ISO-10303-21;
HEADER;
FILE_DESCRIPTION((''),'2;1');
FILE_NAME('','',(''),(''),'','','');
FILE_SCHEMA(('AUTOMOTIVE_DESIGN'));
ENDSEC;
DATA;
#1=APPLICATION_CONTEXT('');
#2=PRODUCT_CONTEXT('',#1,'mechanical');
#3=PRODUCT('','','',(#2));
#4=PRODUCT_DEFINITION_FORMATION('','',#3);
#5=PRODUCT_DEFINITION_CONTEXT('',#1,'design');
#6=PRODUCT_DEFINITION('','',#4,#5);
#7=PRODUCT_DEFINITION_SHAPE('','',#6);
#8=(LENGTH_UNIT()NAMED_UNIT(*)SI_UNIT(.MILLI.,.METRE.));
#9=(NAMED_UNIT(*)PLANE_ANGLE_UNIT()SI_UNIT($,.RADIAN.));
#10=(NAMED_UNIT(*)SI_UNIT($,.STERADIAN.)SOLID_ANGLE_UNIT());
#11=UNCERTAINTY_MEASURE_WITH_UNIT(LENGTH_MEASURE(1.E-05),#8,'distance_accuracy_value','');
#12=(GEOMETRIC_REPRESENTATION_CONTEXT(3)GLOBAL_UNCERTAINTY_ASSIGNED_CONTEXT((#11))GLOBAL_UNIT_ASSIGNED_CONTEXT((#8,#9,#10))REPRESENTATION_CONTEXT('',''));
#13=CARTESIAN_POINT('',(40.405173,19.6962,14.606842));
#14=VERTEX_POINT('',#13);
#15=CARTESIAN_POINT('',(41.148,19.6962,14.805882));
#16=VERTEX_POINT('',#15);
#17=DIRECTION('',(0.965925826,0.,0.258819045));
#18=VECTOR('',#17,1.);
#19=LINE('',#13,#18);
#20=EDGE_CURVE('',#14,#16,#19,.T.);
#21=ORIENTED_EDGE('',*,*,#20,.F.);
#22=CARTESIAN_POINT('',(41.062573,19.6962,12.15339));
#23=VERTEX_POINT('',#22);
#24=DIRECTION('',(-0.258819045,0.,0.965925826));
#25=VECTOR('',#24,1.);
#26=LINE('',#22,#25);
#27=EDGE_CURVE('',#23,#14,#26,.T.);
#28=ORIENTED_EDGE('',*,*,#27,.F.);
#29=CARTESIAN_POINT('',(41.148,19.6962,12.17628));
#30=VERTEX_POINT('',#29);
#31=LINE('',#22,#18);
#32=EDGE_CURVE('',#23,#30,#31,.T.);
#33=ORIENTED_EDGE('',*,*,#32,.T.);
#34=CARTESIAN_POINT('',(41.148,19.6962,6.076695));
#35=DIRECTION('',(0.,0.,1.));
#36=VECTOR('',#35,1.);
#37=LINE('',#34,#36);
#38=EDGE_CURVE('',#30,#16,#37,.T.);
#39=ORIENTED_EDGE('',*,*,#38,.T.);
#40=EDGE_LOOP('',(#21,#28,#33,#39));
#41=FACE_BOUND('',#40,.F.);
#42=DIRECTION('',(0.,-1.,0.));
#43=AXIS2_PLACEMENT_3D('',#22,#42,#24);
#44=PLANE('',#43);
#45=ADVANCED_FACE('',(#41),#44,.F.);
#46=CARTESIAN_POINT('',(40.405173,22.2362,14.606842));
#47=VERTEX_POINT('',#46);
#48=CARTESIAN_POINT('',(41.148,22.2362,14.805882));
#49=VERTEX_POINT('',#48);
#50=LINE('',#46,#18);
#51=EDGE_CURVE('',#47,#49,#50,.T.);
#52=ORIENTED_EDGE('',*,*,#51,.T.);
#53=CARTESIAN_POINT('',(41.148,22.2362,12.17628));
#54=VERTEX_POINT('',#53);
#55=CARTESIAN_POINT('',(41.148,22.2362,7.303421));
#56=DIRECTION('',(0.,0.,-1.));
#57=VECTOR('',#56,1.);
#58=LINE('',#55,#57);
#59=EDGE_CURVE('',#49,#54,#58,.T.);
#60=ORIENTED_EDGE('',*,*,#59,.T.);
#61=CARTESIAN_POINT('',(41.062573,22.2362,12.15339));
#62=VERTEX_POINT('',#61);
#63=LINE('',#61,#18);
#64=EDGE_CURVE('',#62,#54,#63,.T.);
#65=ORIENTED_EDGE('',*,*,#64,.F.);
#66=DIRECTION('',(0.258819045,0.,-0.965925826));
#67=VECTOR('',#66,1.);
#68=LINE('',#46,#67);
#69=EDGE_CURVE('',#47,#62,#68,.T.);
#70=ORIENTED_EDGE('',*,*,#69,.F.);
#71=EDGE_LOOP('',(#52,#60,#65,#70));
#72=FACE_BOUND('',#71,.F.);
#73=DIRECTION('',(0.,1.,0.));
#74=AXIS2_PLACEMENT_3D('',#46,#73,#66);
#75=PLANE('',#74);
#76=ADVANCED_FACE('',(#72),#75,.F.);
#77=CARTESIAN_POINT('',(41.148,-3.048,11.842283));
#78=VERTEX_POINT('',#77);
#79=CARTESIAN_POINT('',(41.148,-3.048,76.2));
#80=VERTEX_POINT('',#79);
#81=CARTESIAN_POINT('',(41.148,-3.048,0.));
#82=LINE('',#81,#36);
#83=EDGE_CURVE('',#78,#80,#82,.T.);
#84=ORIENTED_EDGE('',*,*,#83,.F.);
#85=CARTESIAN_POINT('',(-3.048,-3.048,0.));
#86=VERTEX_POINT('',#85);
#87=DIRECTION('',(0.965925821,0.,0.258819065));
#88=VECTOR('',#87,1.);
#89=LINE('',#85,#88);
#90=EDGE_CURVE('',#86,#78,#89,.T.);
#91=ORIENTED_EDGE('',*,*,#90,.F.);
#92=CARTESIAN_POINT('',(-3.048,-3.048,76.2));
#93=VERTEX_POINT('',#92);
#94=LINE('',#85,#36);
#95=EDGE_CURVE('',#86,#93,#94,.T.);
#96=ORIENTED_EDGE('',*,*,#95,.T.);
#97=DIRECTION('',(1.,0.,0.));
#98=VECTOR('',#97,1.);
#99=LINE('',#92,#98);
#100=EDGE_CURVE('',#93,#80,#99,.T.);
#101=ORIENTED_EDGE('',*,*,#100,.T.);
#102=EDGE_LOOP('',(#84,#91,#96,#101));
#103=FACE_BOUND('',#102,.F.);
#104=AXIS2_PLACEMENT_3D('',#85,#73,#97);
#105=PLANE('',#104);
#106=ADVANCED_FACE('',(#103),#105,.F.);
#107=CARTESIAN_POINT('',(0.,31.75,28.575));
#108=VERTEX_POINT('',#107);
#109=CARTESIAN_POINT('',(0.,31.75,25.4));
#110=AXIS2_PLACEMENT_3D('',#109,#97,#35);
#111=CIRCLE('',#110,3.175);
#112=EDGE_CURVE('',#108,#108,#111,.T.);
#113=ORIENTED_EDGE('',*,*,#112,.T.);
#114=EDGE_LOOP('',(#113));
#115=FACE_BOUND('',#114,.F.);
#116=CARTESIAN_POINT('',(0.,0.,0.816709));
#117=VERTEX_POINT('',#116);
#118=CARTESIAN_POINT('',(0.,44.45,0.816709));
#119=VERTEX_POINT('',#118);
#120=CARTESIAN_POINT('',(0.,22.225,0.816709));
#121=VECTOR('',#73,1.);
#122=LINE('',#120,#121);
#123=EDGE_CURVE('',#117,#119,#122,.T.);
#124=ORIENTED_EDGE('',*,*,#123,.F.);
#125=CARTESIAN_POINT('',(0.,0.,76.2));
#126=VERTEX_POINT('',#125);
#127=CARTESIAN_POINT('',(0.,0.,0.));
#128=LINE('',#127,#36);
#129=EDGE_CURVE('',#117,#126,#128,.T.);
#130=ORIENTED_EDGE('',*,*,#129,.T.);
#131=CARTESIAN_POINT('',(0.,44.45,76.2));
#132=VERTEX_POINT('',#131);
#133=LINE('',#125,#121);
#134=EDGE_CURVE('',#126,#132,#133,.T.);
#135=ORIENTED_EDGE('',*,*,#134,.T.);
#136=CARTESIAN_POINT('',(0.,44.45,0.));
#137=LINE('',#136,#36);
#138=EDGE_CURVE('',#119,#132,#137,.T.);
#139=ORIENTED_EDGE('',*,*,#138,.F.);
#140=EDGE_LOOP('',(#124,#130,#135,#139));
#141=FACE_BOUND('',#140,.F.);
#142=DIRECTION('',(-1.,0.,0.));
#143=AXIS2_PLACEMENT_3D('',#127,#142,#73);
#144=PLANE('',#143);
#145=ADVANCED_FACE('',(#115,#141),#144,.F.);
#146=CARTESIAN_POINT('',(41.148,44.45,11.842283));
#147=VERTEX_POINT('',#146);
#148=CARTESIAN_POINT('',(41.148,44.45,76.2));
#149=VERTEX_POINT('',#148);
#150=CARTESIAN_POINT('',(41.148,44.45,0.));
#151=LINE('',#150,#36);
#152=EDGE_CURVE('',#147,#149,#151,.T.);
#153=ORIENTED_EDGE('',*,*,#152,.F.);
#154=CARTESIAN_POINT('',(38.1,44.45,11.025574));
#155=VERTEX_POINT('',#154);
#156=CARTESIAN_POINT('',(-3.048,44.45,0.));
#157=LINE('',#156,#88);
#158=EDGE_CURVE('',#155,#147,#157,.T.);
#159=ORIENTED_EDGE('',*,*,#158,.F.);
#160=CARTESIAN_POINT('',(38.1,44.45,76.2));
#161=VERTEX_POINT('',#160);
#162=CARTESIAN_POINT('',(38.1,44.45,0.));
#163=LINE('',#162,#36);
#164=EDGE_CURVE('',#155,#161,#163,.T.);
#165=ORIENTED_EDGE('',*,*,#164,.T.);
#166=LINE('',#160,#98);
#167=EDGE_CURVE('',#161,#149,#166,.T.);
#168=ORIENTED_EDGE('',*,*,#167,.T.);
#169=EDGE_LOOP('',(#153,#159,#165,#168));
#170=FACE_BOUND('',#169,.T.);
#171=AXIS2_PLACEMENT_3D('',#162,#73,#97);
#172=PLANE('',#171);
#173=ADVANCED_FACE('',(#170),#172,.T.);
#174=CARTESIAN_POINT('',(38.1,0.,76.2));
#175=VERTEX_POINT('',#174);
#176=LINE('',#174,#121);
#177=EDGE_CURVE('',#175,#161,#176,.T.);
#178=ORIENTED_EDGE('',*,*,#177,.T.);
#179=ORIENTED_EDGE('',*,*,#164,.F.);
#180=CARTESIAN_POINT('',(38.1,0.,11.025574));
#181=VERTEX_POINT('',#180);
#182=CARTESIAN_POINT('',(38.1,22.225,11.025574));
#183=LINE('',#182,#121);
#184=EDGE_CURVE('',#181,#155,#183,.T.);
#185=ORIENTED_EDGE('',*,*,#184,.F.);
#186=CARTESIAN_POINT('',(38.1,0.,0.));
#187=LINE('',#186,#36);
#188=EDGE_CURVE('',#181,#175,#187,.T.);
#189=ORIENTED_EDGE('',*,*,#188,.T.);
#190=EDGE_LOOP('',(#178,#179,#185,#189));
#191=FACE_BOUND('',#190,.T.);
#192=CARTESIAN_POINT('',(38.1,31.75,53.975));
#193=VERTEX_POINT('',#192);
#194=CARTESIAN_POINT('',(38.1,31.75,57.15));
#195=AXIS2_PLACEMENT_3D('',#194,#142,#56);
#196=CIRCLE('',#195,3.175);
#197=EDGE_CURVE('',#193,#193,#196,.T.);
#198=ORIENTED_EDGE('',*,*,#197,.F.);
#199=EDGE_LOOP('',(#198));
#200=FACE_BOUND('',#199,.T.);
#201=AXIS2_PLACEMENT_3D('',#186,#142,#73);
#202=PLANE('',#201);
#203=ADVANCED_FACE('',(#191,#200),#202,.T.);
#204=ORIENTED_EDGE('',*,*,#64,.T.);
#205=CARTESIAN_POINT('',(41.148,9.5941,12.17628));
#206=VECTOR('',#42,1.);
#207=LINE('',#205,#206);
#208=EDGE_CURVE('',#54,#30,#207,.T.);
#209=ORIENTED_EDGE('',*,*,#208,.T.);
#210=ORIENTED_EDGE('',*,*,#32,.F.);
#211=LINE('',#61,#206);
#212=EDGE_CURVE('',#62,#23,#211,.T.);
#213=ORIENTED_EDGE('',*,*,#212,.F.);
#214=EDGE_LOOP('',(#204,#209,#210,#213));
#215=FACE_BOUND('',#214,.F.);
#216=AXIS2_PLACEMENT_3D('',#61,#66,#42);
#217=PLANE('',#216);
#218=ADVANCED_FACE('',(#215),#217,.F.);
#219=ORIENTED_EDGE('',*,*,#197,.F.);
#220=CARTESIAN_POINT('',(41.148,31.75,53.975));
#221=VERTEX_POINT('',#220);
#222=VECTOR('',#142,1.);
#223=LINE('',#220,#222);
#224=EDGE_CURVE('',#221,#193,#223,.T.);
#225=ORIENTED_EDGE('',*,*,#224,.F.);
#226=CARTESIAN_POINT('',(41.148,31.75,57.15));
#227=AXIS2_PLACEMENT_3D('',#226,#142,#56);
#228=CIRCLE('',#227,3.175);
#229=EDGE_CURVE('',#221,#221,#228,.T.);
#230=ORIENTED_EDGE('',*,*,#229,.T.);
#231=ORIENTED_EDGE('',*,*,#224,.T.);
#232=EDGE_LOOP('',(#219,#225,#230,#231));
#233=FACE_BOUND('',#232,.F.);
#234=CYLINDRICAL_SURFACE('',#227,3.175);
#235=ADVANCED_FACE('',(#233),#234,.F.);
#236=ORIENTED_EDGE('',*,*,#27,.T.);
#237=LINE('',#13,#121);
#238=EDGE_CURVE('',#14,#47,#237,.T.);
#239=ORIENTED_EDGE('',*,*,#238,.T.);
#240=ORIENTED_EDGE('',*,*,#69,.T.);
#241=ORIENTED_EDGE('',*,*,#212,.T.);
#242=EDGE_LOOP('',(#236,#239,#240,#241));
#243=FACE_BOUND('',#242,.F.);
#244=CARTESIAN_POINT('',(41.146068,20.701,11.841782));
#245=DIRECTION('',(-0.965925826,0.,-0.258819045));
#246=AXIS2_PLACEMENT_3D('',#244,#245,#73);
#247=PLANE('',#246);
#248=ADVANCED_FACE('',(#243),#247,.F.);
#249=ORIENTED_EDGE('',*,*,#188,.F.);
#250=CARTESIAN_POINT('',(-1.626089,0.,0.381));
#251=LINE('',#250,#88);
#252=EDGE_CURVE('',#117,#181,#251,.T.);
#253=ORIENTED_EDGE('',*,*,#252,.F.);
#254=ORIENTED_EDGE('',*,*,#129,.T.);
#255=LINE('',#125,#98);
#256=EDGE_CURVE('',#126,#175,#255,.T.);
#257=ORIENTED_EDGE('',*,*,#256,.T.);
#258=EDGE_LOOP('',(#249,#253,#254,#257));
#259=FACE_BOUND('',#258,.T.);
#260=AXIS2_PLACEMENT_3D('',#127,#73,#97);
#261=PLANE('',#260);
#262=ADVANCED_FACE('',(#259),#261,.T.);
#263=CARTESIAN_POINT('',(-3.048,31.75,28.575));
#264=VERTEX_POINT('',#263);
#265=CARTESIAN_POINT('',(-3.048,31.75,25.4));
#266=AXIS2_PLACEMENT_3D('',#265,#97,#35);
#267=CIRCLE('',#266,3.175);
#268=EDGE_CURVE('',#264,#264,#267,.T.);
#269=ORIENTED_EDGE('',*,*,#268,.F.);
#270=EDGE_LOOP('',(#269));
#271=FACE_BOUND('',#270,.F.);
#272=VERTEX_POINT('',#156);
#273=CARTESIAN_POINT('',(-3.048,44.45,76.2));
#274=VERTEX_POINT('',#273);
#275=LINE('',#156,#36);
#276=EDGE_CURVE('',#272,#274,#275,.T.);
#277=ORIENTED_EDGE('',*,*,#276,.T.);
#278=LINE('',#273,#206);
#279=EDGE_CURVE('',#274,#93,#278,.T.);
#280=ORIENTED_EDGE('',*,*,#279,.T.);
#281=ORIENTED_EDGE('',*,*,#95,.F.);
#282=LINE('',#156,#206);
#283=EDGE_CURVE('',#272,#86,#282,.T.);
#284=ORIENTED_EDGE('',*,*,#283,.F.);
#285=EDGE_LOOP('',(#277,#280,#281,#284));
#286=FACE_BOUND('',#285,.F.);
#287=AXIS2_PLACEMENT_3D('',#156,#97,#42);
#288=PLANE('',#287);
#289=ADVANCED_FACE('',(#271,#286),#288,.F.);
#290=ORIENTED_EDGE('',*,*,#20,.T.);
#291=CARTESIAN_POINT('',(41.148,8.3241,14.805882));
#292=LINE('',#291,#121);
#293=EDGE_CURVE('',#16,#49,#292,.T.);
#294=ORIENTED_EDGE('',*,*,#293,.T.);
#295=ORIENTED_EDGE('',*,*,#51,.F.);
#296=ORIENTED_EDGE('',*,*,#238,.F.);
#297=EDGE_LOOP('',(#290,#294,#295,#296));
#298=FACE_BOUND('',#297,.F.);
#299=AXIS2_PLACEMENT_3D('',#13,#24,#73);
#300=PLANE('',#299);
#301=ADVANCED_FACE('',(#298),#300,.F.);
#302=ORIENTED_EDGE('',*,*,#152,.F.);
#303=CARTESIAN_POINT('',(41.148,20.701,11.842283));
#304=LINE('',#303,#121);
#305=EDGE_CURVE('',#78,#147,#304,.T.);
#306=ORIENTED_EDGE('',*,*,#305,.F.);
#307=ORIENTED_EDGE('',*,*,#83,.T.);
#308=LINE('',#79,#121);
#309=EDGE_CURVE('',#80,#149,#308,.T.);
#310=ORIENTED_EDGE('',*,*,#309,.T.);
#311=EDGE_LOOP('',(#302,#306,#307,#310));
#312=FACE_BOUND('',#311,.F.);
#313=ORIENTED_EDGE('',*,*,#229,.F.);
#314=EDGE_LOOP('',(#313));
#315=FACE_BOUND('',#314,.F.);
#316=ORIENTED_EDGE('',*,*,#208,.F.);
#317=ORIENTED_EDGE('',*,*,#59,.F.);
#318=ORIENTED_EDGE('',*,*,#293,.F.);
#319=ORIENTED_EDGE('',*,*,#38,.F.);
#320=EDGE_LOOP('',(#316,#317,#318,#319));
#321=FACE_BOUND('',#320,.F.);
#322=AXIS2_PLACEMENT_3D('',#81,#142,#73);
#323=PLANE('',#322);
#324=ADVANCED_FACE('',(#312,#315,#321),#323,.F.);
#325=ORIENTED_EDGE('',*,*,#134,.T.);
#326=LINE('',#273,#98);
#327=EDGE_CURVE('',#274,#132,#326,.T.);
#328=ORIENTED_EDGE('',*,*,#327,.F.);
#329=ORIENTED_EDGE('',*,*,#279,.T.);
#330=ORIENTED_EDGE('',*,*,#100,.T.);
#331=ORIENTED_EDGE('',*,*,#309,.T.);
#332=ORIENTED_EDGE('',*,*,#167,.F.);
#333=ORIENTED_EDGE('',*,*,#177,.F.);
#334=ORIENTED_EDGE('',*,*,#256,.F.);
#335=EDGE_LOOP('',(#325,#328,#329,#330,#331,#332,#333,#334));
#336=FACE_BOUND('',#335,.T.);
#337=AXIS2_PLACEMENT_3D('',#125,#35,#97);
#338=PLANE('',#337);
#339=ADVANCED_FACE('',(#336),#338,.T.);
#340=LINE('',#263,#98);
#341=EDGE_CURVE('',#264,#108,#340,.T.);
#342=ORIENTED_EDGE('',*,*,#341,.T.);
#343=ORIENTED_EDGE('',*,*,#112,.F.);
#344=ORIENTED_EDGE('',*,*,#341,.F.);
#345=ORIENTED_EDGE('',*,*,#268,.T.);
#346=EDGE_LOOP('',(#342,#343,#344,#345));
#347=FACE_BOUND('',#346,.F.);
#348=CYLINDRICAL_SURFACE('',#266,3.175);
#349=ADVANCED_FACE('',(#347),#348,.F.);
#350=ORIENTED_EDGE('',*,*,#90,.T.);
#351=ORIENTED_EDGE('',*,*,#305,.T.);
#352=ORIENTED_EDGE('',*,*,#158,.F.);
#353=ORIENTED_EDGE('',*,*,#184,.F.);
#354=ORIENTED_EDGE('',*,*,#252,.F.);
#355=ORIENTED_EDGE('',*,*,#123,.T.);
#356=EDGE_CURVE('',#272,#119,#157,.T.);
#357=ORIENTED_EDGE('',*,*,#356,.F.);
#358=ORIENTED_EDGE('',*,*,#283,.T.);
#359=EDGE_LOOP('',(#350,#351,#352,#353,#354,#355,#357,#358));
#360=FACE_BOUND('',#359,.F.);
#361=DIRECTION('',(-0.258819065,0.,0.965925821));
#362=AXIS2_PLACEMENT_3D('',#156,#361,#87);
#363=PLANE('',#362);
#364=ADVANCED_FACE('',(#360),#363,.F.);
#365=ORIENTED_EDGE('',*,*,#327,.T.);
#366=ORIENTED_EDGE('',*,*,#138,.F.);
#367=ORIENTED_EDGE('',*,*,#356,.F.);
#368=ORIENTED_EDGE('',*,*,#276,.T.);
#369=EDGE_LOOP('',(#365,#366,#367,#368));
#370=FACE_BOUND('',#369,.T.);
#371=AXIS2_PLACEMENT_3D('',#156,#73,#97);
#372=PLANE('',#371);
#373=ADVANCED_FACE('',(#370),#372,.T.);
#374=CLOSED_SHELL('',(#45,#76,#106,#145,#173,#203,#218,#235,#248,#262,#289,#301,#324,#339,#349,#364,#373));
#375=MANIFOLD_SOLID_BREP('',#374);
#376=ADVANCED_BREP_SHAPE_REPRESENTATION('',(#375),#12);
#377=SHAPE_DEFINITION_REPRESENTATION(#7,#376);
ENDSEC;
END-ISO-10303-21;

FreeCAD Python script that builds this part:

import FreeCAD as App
import Part
import Sketcher
Q = App.Units.Quantity


def add_polygon(sketch, points):
    """Adds a closed chain of lines whose ends are joined by coincident constraints."""
    first, n = sketch.GeometryCount, len(points)
    for a, b in zip(points, points[1:] + points[:1]):
        sketch.addGeometry(Part.LineSegment(App.Vector(*a, 0), App.Vector(*b, 0)), False)
    for i in range(n):
        sketch.addConstraint(Sketcher.Constraint("Coincident", first + i, 2, first + (i + 1) % n, 1))

doc = App.newDocument("Part")
body = doc.addObject("PartDesign::Body", "Body")

sketch1 = doc.addObject("Sketcher::SketchObject", "Sketch")
body.addObject(sketch1)
sketch1.AttachmentSupport = (doc.XY_Plane, [""])
sketch1.MapMode = "FlatFace"
add_polygon(sketch1, [(38.1, 0), (0, 0), (0, 44.45), (-3.048, 44.45), (-3.048, -3.048), (41.148, -3.048), (41.148, 44.45), (38.1, 44.45)])
sketch1.addConstraint(Sketcher.Constraint("Horizontal", 0))
sketch1.addConstraint(Sketcher.Constraint("Vertical", 1))
sketch1.addConstraint(Sketcher.Constraint("Horizontal", 2))
sketch1.addConstraint(Sketcher.Constraint("Vertical", 3))
sketch1.addConstraint(Sketcher.Constraint("Horizontal", 4))
sketch1.addConstraint(Sketcher.Constraint("Vertical", 5))
sketch1.addConstraint(Sketcher.Constraint("Horizontal", 6))
sketch1.addConstraint(Sketcher.Constraint("Vertical", 7))
sketch1.addConstraint(Sketcher.Constraint("Coincident", 0, 2, -1, 1))
sketch1.addConstraint(Sketcher.Constraint("Horizontal", 2, 2, 5, 2))
sketch1.addConstraint(Sketcher.Constraint("Equal", 2, 6))
sketch1.addConstraint(Sketcher.Constraint("DistanceX", 0, 2, 0, 1, Q("1.5 in")))
sketch1.addConstraint(Sketcher.Constraint("DistanceX", 2, 2, 2, 1, Q("0.12 in")))
sketch1.addConstraint(Sketcher.Constraint("DistanceY", 1, 1, 1, 2, Q("1.75 in")))
sketch1.addConstraint(Sketcher.Constraint("DistanceY", 3, 2, -1, 1, Q("0.12 in")))
pad1 = doc.addObject("PartDesign::Pad", "Pad")
body.addObject(pad1)
pad1.Profile = sketch1
pad1.Length = Q("3 in")

sketch2 = doc.addObject("Sketcher::SketchObject", "Sketch001")
body.addObject(sketch2)
sketch2.AttachmentSupport = (doc.XZ_Plane, [""])
sketch2.MapMode = "FlatFace"
sketch2.AttachmentOffset = App.Placement(App.Vector(0, 0, -1.75 * 25.4), App.Rotation())
add_polygon(sketch2, [(46.021, 0), (-3.048, 0), (46.021, 13.148)])
sketch2.addConstraint(Sketcher.Constraint("Horizontal", 0))
sketch2.addConstraint(Sketcher.Constraint("Vertical", 2))
sketch2.addConstraint(Sketcher.Constraint("PointOnObject", 0, 2, -1))
sketch2.addConstraint(Sketcher.Constraint("Distance", 1, Q("2 in")))
sketch2.addConstraint(Sketcher.Constraint("Angle", 1, Q("15 deg")))
sketch2.addConstraint(Sketcher.Constraint("DistanceX", 0, 2, -1, 1, Q("0.12 in")))
pocket1 = doc.addObject("PartDesign::Pocket", "Pocket")
body.addObject(pocket1)
pocket1.Profile = sketch2
pocket1.Length = Q("4 in")
pocket1.Reversed = True

sketch3 = doc.addObject("Sketcher::SketchObject", "Sketch002")
body.addObject(sketch3)
sketch3.AttachmentSupport = (doc.YZ_Plane, [""])
sketch3.MapMode = "FlatFace"
sketch3.AttachmentOffset = App.Placement(App.Vector(0, 0, 1.62 * 25.4), App.Rotation())
sketch3.addGeometry(Part.Circle(App.Vector(31.75, 57.15, 0), App.Vector(0, 0, 1), 3.175), False)
sketch3.addConstraint(Sketcher.Constraint("Diameter", 0, Q("0.25 in")))
sketch3.addConstraint(Sketcher.Constraint("DistanceX", -1, 1, 0, 3, Q("1.25 in")))
sketch3.addConstraint(Sketcher.Constraint("DistanceY", -1, 1, 0, 3, Q("2.25 in")))
doc.recompute()
hole = doc.addObject("PartDesign::Hole", "Hole")
body.addObject(hole)
hole.Profile = sketch3
hole.ThreadType = "None"
hole.Diameter = Q("0.25 in")
hole.DepthType = "Dimension"
hole.Depth = Q("1 in")
hole.DrillPoint = "Angled"
hole.DrillPointAngle = 118

sketch4 = doc.addObject("Sketcher::SketchObject", "Sketch003")
body.addObject(sketch4)
sketch4.AttachmentSupport = (doc.YZ_Plane, [""])
sketch4.MapMode = "FlatFace"
sketch4.AttachmentOffset = App.Placement(App.Vector(0, 0, -0.12 * 25.4), App.Rotation())
sketch4.addGeometry(Part.Circle(App.Vector(31.75, 25.4, 0), App.Vector(0, 0, 1), 3.175), False)
sketch4.addConstraint(Sketcher.Constraint("Diameter", 0, Q("0.25 in")))
sketch4.addConstraint(Sketcher.Constraint("DistanceY", -1, 1, 0, 3, Q("1 in")))
sketch4.addConstraint(Sketcher.Constraint("DistanceX", -1, 1, 0, 3, Q("1.25 in")))
doc.recompute()
hole2 = doc.addObject("PartDesign::Hole", "Hole001")
body.addObject(hole2)
hole2.Profile = sketch4
hole2.ThreadType = "None"
hole2.Diameter = Q("0.25 in")
hole2.DepthType = "Dimension"
hole2.Depth = Q("1 in")
hole2.DrillPoint = "Angled"
hole2.DrillPointAngle = 118
hole2.Reversed = True

sketch5 = doc.addObject("Sketcher::SketchObject", "Sketch004")
body.addObject(sketch5)
sketch5.Placement = App.Placement(App.Vector(41.148, 20.701, 11.8423), App.Rotation(App.Vector(0, 1, 0), App.Vector(0.258819045, 0, -0.965925826), App.Vector(-0.965925826, 0, -0.258819045), "ZXY"))
add_polygon(sketch5, [(1.5352, -2.8626), (1.5352, -0.3226), (-1.0048, -0.3226), (-1.0048, -2.8626)])
sketch5.addConstraint(Sketcher.Constraint("Vertical", 0))
sketch5.addConstraint(Sketcher.Constraint("Horizontal", 1))
sketch5.addConstraint(Sketcher.Constraint("Vertical", 2))
sketch5.addConstraint(Sketcher.Constraint("Horizontal", 3))
sketch5.addConstraint(Sketcher.Constraint("Equal", 3, 0))
sketch5.addConstraint(Sketcher.Constraint("DistanceX", 1, 2, 1, 1, Q("0.1 in")))
sketch5.addConstraint(Sketcher.Constraint("DistanceY", 0, 2, -1, 1, Q("0.0127 in")))
sketch5.addConstraint(Sketcher.Constraint("DistanceX", -1, 1, 0, 2, 1.5352))
pocket2 = doc.addObject("PartDesign::Pocket", "Pocket001")
body.addObject(pocket2)
pocket2.Profile = sketch5
pocket2.Length = Q("4 in")

doc.recompute()
